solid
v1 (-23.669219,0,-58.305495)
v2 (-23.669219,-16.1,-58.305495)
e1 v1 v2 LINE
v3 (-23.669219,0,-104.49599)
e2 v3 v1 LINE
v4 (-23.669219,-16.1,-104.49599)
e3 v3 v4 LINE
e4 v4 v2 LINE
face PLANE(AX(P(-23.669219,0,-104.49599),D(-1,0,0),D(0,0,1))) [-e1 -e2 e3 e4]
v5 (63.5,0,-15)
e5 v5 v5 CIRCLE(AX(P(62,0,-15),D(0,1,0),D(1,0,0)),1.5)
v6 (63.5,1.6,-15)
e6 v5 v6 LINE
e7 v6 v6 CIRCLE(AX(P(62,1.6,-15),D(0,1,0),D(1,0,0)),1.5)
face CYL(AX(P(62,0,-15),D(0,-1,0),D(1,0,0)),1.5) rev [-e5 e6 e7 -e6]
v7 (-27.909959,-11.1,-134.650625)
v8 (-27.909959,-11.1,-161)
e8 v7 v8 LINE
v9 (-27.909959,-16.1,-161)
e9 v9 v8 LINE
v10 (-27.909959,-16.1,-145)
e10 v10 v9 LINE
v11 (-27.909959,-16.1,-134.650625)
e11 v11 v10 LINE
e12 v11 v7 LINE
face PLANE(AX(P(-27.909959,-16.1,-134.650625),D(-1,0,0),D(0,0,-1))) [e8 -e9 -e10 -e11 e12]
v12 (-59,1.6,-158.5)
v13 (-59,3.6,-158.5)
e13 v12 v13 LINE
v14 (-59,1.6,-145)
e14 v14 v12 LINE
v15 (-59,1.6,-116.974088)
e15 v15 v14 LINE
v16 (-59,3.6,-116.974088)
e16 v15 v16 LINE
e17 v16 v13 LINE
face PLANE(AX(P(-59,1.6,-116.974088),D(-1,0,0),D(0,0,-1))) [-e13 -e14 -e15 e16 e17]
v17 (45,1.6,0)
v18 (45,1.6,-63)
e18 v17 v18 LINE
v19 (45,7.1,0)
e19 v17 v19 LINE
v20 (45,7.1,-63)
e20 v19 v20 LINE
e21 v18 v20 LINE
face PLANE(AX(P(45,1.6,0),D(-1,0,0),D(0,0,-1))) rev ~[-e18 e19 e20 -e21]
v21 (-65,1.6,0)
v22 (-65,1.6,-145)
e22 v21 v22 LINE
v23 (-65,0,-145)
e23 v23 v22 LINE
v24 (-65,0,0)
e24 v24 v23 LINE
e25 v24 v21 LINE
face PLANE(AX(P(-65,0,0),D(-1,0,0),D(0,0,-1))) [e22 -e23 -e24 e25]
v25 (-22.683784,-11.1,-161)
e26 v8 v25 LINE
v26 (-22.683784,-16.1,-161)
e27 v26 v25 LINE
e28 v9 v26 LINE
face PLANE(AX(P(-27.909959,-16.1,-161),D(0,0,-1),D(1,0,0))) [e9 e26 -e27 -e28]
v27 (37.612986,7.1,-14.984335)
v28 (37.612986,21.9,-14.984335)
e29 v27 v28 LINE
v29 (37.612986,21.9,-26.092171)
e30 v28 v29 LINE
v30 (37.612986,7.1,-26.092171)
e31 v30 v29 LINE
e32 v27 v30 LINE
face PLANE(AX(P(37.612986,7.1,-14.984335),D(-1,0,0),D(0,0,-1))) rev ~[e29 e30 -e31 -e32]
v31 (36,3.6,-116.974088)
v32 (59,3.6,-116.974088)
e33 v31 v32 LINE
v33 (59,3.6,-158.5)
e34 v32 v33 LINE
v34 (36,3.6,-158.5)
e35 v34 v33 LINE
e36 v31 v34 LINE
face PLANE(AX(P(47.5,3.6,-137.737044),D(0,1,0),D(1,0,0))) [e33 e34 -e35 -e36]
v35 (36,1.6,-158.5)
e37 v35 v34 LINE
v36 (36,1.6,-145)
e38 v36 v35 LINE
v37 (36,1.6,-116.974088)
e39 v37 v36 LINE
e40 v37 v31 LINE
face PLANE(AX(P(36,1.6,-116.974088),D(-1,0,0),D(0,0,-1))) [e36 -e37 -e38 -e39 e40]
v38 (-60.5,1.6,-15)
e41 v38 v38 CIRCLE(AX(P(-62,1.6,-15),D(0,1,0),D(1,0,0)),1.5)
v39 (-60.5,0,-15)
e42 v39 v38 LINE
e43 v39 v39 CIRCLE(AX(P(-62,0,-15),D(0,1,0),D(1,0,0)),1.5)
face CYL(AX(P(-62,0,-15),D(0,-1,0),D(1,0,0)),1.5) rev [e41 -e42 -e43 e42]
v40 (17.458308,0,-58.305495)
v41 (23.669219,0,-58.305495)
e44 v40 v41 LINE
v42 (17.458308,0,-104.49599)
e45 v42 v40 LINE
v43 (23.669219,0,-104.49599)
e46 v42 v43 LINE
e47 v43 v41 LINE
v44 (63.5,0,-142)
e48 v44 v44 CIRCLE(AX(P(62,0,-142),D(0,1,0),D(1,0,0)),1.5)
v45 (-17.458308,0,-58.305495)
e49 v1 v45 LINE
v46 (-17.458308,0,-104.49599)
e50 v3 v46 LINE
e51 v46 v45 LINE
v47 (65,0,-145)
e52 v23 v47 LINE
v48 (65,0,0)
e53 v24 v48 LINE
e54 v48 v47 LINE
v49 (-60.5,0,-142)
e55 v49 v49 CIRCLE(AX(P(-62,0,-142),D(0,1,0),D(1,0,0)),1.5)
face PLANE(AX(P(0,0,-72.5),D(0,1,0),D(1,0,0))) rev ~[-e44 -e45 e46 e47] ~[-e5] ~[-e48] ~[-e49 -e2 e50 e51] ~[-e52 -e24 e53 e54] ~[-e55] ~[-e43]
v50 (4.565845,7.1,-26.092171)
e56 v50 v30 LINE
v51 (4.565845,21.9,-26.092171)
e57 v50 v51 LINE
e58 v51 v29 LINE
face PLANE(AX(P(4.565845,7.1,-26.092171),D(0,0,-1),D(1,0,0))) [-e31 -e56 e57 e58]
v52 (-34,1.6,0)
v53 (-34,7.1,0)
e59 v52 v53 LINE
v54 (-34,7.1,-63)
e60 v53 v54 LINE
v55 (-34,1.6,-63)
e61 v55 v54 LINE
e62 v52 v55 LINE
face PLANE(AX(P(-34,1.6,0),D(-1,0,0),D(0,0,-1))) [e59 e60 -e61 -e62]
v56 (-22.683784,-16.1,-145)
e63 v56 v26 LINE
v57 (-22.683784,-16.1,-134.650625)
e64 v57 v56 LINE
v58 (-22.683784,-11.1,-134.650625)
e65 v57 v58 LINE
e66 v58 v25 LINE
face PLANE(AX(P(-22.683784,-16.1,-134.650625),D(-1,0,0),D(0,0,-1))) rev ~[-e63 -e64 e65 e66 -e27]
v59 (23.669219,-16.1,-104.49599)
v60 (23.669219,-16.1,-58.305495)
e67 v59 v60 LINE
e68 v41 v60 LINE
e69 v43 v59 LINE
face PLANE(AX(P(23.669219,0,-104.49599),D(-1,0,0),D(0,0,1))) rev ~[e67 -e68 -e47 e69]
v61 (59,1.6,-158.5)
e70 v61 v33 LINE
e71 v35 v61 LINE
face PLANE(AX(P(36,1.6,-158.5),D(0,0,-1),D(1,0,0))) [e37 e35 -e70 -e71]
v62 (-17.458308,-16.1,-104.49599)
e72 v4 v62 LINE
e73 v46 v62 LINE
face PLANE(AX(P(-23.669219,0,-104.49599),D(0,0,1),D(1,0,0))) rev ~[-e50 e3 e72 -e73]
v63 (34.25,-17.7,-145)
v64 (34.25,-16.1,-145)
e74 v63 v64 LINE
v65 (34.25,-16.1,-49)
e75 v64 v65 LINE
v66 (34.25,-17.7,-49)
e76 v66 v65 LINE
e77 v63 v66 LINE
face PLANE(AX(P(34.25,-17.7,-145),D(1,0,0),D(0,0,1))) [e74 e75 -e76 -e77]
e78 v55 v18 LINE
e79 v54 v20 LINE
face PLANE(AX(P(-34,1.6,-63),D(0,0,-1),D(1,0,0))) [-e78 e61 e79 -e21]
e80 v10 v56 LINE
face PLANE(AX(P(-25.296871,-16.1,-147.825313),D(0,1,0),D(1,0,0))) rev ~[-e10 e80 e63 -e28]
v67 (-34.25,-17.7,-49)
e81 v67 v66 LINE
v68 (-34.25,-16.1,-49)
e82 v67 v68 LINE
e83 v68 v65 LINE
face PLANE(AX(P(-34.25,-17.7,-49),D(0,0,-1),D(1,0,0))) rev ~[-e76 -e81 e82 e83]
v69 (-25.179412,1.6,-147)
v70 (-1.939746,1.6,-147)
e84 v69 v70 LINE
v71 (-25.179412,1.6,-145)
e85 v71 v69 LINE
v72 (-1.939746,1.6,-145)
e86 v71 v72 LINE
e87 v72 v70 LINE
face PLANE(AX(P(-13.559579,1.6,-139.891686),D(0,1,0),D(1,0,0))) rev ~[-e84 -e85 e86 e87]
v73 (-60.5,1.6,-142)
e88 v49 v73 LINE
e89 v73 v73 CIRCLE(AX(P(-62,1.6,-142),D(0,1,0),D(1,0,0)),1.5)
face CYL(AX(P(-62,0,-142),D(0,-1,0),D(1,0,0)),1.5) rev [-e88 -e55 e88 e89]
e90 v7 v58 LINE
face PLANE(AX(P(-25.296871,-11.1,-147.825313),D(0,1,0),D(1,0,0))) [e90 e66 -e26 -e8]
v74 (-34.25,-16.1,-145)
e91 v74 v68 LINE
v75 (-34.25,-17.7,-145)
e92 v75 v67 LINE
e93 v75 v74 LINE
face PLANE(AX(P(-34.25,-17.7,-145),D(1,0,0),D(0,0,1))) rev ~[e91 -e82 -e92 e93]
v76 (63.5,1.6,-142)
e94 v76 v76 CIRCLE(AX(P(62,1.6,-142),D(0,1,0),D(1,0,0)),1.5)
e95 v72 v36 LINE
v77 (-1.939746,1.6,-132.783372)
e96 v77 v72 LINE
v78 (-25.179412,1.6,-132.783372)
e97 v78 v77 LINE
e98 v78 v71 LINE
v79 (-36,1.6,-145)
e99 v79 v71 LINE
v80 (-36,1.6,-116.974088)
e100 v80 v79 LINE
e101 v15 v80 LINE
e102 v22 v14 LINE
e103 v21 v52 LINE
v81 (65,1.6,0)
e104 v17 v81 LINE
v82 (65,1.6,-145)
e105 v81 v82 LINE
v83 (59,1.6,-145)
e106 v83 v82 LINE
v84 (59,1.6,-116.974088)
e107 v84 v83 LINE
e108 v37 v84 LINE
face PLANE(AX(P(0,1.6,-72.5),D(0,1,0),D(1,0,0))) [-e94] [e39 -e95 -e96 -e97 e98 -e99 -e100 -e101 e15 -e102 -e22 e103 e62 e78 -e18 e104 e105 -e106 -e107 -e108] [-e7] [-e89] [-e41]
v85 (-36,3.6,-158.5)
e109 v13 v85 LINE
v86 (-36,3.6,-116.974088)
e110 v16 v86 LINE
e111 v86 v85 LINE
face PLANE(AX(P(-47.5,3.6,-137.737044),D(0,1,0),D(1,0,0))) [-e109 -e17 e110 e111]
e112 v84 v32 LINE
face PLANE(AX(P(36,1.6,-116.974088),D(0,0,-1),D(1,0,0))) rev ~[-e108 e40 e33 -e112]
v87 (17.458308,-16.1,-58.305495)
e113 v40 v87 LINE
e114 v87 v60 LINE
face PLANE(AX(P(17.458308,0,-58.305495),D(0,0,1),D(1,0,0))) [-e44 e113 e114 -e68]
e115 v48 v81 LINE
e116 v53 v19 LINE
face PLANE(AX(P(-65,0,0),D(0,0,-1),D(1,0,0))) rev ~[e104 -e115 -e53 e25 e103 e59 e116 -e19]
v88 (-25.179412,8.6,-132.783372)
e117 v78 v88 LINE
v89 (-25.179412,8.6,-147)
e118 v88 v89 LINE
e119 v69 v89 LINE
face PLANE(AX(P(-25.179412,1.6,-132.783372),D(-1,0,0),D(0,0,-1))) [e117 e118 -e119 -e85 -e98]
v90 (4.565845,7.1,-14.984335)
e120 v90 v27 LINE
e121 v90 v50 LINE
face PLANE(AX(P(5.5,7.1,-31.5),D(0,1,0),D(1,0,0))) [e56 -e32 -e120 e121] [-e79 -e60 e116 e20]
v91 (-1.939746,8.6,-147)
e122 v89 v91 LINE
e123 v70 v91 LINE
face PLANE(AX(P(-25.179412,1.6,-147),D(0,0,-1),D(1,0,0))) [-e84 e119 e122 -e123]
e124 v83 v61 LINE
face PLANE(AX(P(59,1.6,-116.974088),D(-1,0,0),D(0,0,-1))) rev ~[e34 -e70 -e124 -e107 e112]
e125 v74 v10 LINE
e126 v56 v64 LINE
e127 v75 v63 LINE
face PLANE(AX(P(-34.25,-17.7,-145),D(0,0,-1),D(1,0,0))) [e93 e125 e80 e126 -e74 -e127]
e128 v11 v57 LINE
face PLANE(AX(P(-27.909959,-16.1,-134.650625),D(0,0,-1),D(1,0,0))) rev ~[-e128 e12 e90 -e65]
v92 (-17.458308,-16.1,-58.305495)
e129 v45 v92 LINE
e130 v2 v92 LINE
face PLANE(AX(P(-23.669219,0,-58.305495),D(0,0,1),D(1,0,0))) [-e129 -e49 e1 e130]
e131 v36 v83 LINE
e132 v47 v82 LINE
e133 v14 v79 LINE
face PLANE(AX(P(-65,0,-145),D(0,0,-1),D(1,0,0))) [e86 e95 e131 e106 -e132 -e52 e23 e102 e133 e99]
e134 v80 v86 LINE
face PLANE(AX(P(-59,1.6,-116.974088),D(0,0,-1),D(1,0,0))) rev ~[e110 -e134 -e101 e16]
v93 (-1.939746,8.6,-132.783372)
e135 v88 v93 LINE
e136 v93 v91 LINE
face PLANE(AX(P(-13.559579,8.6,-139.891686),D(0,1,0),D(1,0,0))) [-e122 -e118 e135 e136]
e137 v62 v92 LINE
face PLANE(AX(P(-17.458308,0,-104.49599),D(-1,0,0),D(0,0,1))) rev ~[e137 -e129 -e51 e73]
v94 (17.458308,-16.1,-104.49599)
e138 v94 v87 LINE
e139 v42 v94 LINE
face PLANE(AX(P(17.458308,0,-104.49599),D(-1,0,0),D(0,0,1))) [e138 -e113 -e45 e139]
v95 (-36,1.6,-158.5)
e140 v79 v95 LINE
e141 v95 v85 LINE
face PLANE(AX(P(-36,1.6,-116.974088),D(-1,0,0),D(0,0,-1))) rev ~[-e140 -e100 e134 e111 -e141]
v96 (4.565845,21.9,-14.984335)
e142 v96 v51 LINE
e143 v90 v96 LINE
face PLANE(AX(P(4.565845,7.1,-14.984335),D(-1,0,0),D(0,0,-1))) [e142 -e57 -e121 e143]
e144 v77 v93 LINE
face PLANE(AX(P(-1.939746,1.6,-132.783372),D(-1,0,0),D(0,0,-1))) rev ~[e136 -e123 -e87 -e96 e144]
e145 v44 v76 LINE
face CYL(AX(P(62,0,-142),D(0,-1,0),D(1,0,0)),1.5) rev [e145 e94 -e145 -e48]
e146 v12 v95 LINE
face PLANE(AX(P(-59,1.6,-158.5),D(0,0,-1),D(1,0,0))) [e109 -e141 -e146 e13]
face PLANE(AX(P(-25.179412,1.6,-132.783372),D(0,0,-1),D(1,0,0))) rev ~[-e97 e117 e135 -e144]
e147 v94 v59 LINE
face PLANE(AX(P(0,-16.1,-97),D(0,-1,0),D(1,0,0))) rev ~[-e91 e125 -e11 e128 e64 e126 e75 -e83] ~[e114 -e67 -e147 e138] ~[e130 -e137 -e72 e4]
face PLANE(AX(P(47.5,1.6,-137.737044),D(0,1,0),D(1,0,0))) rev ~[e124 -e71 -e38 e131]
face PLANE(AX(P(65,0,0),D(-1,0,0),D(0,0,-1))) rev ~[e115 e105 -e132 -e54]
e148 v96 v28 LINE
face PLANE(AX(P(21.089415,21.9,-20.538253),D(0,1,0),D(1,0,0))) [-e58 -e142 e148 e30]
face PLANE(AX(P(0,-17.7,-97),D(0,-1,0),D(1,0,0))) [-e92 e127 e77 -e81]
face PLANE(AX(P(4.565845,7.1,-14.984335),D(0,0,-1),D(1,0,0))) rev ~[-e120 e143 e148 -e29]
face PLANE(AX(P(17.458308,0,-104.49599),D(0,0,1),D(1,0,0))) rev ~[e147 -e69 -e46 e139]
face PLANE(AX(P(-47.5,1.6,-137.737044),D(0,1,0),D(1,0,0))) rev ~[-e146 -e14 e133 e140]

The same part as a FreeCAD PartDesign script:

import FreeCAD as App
import Part
import Sketcher
Q = App.Units.Quantity


def add_polygon(sketch, points):
    """Adds a closed chain of lines whose ends are joined by coincident constraints."""
    first, n = sketch.GeometryCount, len(points)
    for a, b in zip(points, points[1:] + points[:1]):
        sketch.addGeometry(Part.LineSegment(App.Vector(*a, 0), App.Vector(*b, 0)), False)
    for i in range(n):
        sketch.addConstraint(Sketcher.Constraint("Coincident", first + i, 2, first + (i + 1) % n, 1))

doc = App.newDocument("Part")
params = doc.addObject("Spreadsheet::Sheet", "Params")
for row, (alias, value) in enumerate([
    ("sketch1_diameter", "3 mm"),
    ("sketch1_width", "130 mm"),
    ("sketch1_height", "145 mm"),
    ("pad1_length", "1.6 mm"),
    ("sketch2_width", "79 mm"),
    ("sketch2_height", "63 mm"),
    ("pad2_length", "5.5 mm"),
    ("pad3_length", "14.8 mm"),
    ("pad4_length", "7 mm"),
    ("sketch5_width", "23 mm"),
    ("pad5_length", "2 mm"),
    ("pad6_length", "17.7 mm"),
    ("sketch7_height", "96 mm"),
    ("sketch7_width", "68.5 mm"),
    ("pad7_length", "1.6 mm"),
    ("pad8_length", "5 mm"),
], start=1):
    params.set(f"A{row}", alias)
    params.set(f"B{row}", "=" + value)
    params.setAlias(f"B{row}", alias)

body = doc.addObject("PartDesign::Body", "Body")

# Sketch on XZ plane
sketch1 = doc.addObject("Sketcher::SketchObject", "Sketch")
body.addObject(sketch1)
sketch1.AttachmentSupport = (doc.XZ_Plane, [""])
sketch1.MapMode = "FlatFace"
add_polygon(sketch1, [(-65, -145), (-65, 0), (65, 0), (65, -145)])  # lines 0-3
sketch1.addGeometry(Part.Circle(App.Vector(-62, -15, 0), App.Vector(0, 0, 1), 1.5), False)  # 4
sketch1.addGeometry(Part.Circle(App.Vector(62, -15, 0), App.Vector(0, 0, 1), 1.5), False)  # 5
sketch1.addGeometry(Part.Circle(App.Vector(-62, -142, 0), App.Vector(0, 0, 1), 1.5), False)  # 6
sketch1.addGeometry(Part.Circle(App.Vector(62, -142, 0), App.Vector(0, 0, 1), 1.5), False)  # 7
sketch1.addConstraint(Sketcher.Constraint("Vertical", 0))
sketch1.addConstraint(Sketcher.Constraint("Horizontal", 1))
sketch1.addConstraint(Sketcher.Constraint("Vertical", 2))
sketch1.addConstraint(Sketcher.Constraint("Horizontal", 3))
sketch1.addConstraint(Sketcher.Constraint("Equal", 4, 5))
sketch1.addConstraint(Sketcher.Constraint("Equal", 5, 6))
sketch1.addConstraint(Sketcher.Constraint("Equal", 6, 7))
sketch1.addConstraint(Sketcher.Constraint("Symmetric", 0, 2, 1, 2, -1, 1))
sketch1.addConstraint(Sketcher.Constraint("Symmetric", 4, 3, 5, 3, -2))
sketch1.addConstraint(Sketcher.Constraint("Symmetric", 6, 3, 7, 3, -2))
sketch1.addConstraint(Sketcher.Constraint("Vertical", 4, 3, 6, 3))
sketch1.addConstraint(Sketcher.Constraint("Diameter", 4, Q("3 mm")))
sketch1.addConstraint(Sketcher.Constraint("DistanceX", 1, 1, 1, 2, Q("130 mm")))
sketch1.addConstraint(Sketcher.Constraint("DistanceY", 0, 1, 0, 2, Q("145 mm")))
sketch1.addConstraint(Sketcher.Constraint("DistanceX", 4, 3, -1, 1, Q("62 mm")))
sketch1.addConstraint(Sketcher.Constraint("DistanceY", 4, 3, -1, 1, Q("15 mm")))
sketch1.addConstraint(Sketcher.Constraint("DistanceY", 6, 3, -1, 1, Q("142 mm")))
sketch1.setExpression("Constraints[15]", "Params.sketch1_diameter")
sketch1.setExpression("Constraints[16]", "Params.sketch1_width")
sketch1.setExpression("Constraints[17]", "Params.sketch1_height")
pad1 = doc.addObject("PartDesign::Pad", "Pad")
body.addObject(pad1)
pad1.Profile = sketch1
pad1.setExpression("Length", "Params.pad1_length")
pad1.Reversed = True

# Sketch on XZ plane
sketch2 = doc.addObject("Sketcher::SketchObject", "Sketch001")
body.addObject(sketch2)
sketch2.AttachmentSupport = (doc.XZ_Plane, [""])
sketch2.MapMode = "FlatFace"
sketch2.AttachmentOffset = App.Placement(App.Vector(0, 0, -1.6), App.Rotation())
add_polygon(sketch2, [(-34, -63), (-34, 0), (45, 0), (45, -63)])  # lines 0-3
sketch2.addConstraint(Sketcher.Constraint("Vertical", 0))
sketch2.addConstraint(Sketcher.Constraint("Horizontal", 1))
sketch2.addConstraint(Sketcher.Constraint("Vertical", 2))
sketch2.addConstraint(Sketcher.Constraint("Horizontal", 3))
sketch2.addConstraint(Sketcher.Constraint("PointOnObject", 0, 2, -1))
sketch2.addConstraint(Sketcher.Constraint("DistanceX", 1, 1, 1, 2, Q("79 mm")))
sketch2.addConstraint(Sketcher.Constraint("DistanceY", 0, 1, 0, 2, Q("63 mm")))
sketch2.addConstraint(Sketcher.Constraint("DistanceX", 0, 2, -1, 1, Q("34 mm")))
sketch2.setExpression("Constraints[9]", "Params.sketch2_width")
sketch2.setExpression("Constraints[10]", "Params.sketch2_height")
pad2 = doc.addObject("PartDesign::Pad", "Pad001")
body.addObject(pad2)
pad2.Profile = sketch2
pad2.setExpression("Length", "Params.pad2_length")
pad2.Reversed = True

# Sketch on XZ plane
sketch3 = doc.addObject("Sketcher::SketchObject", "Sketch002")
body.addObject(sketch3)
sketch3.AttachmentSupport = (doc.XZ_Plane, [""])
sketch3.MapMode = "FlatFace"
sketch3.AttachmentOffset = App.Placement(App.Vector(0, 0, -7.1), App.Rotation())
add_polygon(sketch3, [(4.565845, -26.092171), (4.565845, -14.984335), (37.612986, -14.984335), (37.612986, -26.092171)])  # lines 0-3
sketch3.addConstraint(Sketcher.Constraint("Vertical", 0))
sketch3.addConstraint(Sketcher.Constraint("Horizontal", 1))
sketch3.addConstraint(Sketcher.Constraint("Vertical", 2))
sketch3.addConstraint(Sketcher.Constraint("Horizontal", 3))
sketch3.addConstraint(Sketcher.Constraint("DistanceX", 1, 1, 1, 2, Q("33.047141 mm")))
sketch3.addConstraint(Sketcher.Constraint("DistanceY", 0, 1, 0, 2, Q("11.107836 mm")))
sketch3.addConstraint(Sketcher.Constraint("DistanceY", 2, 2, -1, 1, Q("26.092171 mm")))
sketch3.addConstraint(Sketcher.Constraint("DistanceX", -1, 1, 0, 2, Q("4.565845 mm")))
pad3 = doc.addObject("PartDesign::Pad", "Pad002")
body.addObject(pad3)
pad3.Profile = sketch3
pad3.setExpression("Length", "Params.pad3_length")
pad3.Reversed = True

# Sketch on XZ plane
sketch4 = doc.addObject("Sketcher::SketchObject", "Sketch003")
body.addObject(sketch4)
sketch4.AttachmentSupport = (doc.XZ_Plane, [""])
sketch4.MapMode = "FlatFace"
sketch4.AttachmentOffset = App.Placement(App.Vector(0, 0, -1.6), App.Rotation())
add_polygon(sketch4, [(-25.179412, -147), (-25.179412, -132.783372), (-1.939746, -132.783372), (-1.939746, -147)])  # lines 0-3
sketch4.addConstraint(Sketcher.Constraint("Vertical", 0))
sketch4.addConstraint(Sketcher.Constraint("Horizontal", 1))
sketch4.addConstraint(Sketcher.Constraint("Vertical", 2))
sketch4.addConstraint(Sketcher.Constraint("Horizontal", 3))
sketch4.addConstraint(Sketcher.Constraint("DistanceY", 2, 2, -1, 1, Q("147 mm")))
sketch4.addConstraint(Sketcher.Constraint("DistanceY", 0, 1, 0, 2, Q("14.216628 mm")))
sketch4.addConstraint(Sketcher.Constraint("DistanceX", 1, 1, 1, 2, Q("23.239666 mm")))
sketch4.addConstraint(Sketcher.Constraint("DistanceX", 0, 2, -1, 1, Q("25.179412 mm")))
pad4 = doc.addObject("PartDesign::Pad", "Pad003")
body.addObject(pad4)
pad4.Profile = sketch4
pad4.setExpression("Length", "Params.pad4_length")
pad4.Reversed = True

# Sketch on XZ plane
sketch5 = doc.addObject("Sketcher::SketchObject", "Sketch004")
body.addObject(sketch5)
sketch5.AttachmentSupport = (doc.XZ_Plane, [""])
sketch5.MapMode = "FlatFace"
sketch5.AttachmentOffset = App.Placement(App.Vector(0, 0, -1.6), App.Rotation())
add_polygon(sketch5, [(-59, -158.5), (-59, -116.974088), (-36, -116.974088), (-36, -158.5)])  # lines 0-3
add_polygon(sketch5, [(36, -158.5), (36, -116.974088), (59, -116.974088), (59, -158.5)])  # lines 4-7
sketch5.addConstraint(Sketcher.Constraint("Vertical", 0))
sketch5.addConstraint(Sketcher.Constraint("Horizontal", 1))
sketch5.addConstraint(Sketcher.Constraint("Vertical", 2))
sketch5.addConstraint(Sketcher.Constraint("Horizontal", 3))
sketch5.addConstraint(Sketcher.Constraint("Vertical", 4))
sketch5.addConstraint(Sketcher.Constraint("Horizontal", 5))
sketch5.addConstraint(Sketcher.Constraint("Vertical", 6))
sketch5.addConstraint(Sketcher.Constraint("Horizontal", 7))
sketch5.addConstraint(Sketcher.Constraint("Symmetric", 1, 2, 4, 2, -2))
sketch5.addConstraint(Sketcher.Constraint("Symmetric", 3, 2, 6, 2, -2))
sketch5.addConstraint(Sketcher.Constraint("DistanceX", 1, 1, 1, 2, Q("23 mm")))
sketch5.addConstraint(Sketcher.Constraint("DistanceX", 0, 2, -1, 1, Q("59 mm")))
sketch5.addConstraint(Sketcher.Constraint("DistanceY", 2, 2, -1, 1, Q("158.5 mm")))
sketch5.addConstraint(Sketcher.Constraint("DistanceY", 0, 1, 0, 2, Q("41.525912 mm")))
sketch5.setExpression("Constraints[18]", "Params.sketch5_width")
pad5 = doc.addObject("PartDesign::Pad", "Pad004")
body.addObject(pad5)
pad5.Profile = sketch5
pad5.setExpression("Length", "Params.pad5_length")
pad5.Reversed = True

# Sketch on XZ plane
sketch6 = doc.addObject("Sketcher::SketchObject", "Sketch005")
body.addObject(sketch6)
sketch6.AttachmentSupport = (doc.XZ_Plane, [""])
sketch6.MapMode = "FlatFace"
add_polygon(sketch6, [(17.458308, -58.305495), (17.458308, -104.49599), (23.669219, -104.49599), (23.669219, -58.305495)])  # lines 0-3
add_polygon(sketch6, [(-23.669219, -58.305495), (-23.669219, -104.49599), (-17.458308, -104.49599), (-17.458308, -58.305495)])  # lines 4-7
sketch6.addConstraint(Sketcher.Constraint("Vertical", 0))
sketch6.addConstraint(Sketcher.Constraint("Horizontal", 1))
sketch6.addConstraint(Sketcher.Constraint("Vertical", 2))
sketch6.addConstraint(Sketcher.Constraint("Horizontal", 3))
sketch6.addConstraint(Sketcher.Constraint("Vertical", 4))
sketch6.addConstraint(Sketcher.Constraint("Horizontal", 5))
sketch6.addConstraint(Sketcher.Constraint("Vertical", 6))
sketch6.addConstraint(Sketcher.Constraint("Horizontal", 7))
sketch6.addConstraint(Sketcher.Constraint("Symmetric", 1, 2, 4, 2, -2))
sketch6.addConstraint(Sketcher.Constraint("Symmetric", 3, 2, 6, 2, -2))
sketch6.addConstraint(Sketcher.Constraint("DistanceX", 1, 1, 1, 2, Q("6.21091 mm")))
sketch6.addConstraint(Sketcher.Constraint("DistanceY", 0, 2, 0, 1, Q("46.190496 mm")))
sketch6.addConstraint(Sketcher.Constraint("DistanceX", -1, 1, 0, 2, Q("17.458308 mm")))
sketch6.addConstraint(Sketcher.Constraint("DistanceY", 0, 2, -1, 1, Q("104.49599 mm")))
pad6 = doc.addObject("PartDesign::Pad", "Pad005")
body.addObject(pad6)
pad6.Profile = sketch6
pad6.setExpression("Length", "Params.pad6_length")

# Sketch on XZ plane
sketch7 = doc.addObject("Sketcher::SketchObject", "Sketch006")
body.addObject(sketch7)
sketch7.AttachmentSupport = (doc.XZ_Plane, [""])
sketch7.MapMode = "FlatFace"
sketch7.AttachmentOffset = App.Placement(App.Vector(0, 0, 17.7), App.Rotation())
add_polygon(sketch7, [(-34.25, -49), (-34.25, -145), (34.25, -145), (34.25, -49)])  # lines 0-3
sketch7.addConstraint(Sketcher.Constraint("Vertical", 0))
sketch7.addConstraint(Sketcher.Constraint("Horizontal", 1))
sketch7.addConstraint(Sketcher.Constraint("Vertical", 2))
sketch7.addConstraint(Sketcher.Constraint("Horizontal", 3))
sketch7.addConstraint(Sketcher.Constraint("DistanceY", 0, 2, 0, 1, Q("96 mm")))
sketch7.addConstraint(Sketcher.Constraint("DistanceX", 1, 1, 1, 2, Q("68.5 mm")))
sketch7.addConstraint(Sketcher.Constraint("DistanceY", 0, 2, -1, 1, Q("145 mm")))
sketch7.addConstraint(Sketcher.Constraint("DistanceX", 0, 2, -1, 1, Q("34.25 mm")))
sketch7.setExpression("Constraints[8]", "Params.sketch7_height")
sketch7.setExpression("Constraints[9]", "Params.sketch7_width")
pad7 = doc.addObject("PartDesign::Pad", "Pad006")
body.addObject(pad7)
pad7.Profile = sketch7
pad7.setExpression("Length", "Params.pad7_length")
pad7.Reversed = True

# Sketch on XZ plane
sketch8 = doc.addObject("Sketcher::SketchObject", "Sketch007")
body.addObject(sketch8)
sketch8.AttachmentSupport = (doc.XZ_Plane, [""])
sketch8.MapMode = "FlatFace"
sketch8.AttachmentOffset = App.Placement(App.Vector(0, 0, 16.1), App.Rotation())
add_polygon(sketch8, [(-27.909959, -161), (-27.909959, -134.650625), (-22.683784, -134.650625), (-22.683784, -161)])  # lines 0-3
sketch8.addConstraint(Sketcher.Constraint("Vertical", 0))
sketch8.addConstraint(Sketcher.Constraint("Horizontal", 1))
sketch8.addConstraint(Sketcher.Constraint("Vertical", 2))
sketch8.addConstraint(Sketcher.Constraint("Horizontal", 3))
sketch8.addConstraint(Sketcher.Constraint("DistanceY", 2, 2, -1, 1, Q("161 mm")))
sketch8.addConstraint(Sketcher.Constraint("DistanceX", 1, 1, 1, 2, Q("5.226175 mm")))
sketch8.addConstraint(Sketcher.Constraint("DistanceY", 0, 1, 0, 2, Q("26.349375 mm")))
sketch8.addConstraint(Sketcher.Constraint("DistanceX", 0, 2, -1, 1, Q("27.909959 mm")))
pad8 = doc.addObject("PartDesign::Pad", "Pad007")
body.addObject(pad8)
pad8.Profile = sketch8
pad8.setExpression("Length", "Params.pad8_length")
pad8.Reversed = True

doc.recompute()
